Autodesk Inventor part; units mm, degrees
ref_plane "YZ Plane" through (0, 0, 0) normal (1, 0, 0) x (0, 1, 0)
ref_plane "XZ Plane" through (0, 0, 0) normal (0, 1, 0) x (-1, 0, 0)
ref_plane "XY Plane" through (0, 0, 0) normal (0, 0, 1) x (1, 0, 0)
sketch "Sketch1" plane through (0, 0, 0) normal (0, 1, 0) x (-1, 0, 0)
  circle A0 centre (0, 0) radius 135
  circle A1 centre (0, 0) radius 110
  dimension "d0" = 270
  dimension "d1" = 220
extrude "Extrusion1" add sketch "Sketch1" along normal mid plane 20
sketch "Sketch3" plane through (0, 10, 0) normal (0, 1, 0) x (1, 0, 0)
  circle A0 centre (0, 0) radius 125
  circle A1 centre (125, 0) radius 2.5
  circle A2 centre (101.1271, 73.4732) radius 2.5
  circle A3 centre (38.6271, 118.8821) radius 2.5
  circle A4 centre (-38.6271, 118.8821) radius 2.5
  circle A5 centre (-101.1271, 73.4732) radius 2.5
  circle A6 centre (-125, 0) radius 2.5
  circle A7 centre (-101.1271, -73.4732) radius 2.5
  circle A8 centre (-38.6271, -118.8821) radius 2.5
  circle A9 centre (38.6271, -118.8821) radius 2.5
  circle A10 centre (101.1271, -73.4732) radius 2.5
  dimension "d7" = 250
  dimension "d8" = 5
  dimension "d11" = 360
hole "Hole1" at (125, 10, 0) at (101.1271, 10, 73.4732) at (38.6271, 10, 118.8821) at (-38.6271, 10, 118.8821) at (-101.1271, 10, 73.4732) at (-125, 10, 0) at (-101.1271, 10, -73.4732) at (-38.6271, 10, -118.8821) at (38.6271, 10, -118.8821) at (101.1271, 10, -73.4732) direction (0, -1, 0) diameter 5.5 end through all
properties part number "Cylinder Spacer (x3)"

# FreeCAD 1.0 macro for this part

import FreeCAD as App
import Part
import Sketcher
from FreeCAD import Vector

doc = App.newDocument("Part")
params = doc.addObject("Spreadsheet::Sheet", "Params")
for row, (alias, value) in enumerate([
    ("sketch1_diameter", "270 mm"),
    ("sketch1_diameter2", "220 mm"),
    ("pad1_length", "20 mm"),
    ("sketch2_diameter", "5.5 mm"),
    ("hole_diameter", "5.5 mm"),
], start=1):
    params.set(f"A{row}", alias)
    params.set(f"B{row}", "=" + value)
    params.setAlias(f"B{row}", alias)

body = doc.addObject("PartDesign::Body", "Body")

# Sketch on XZ plane
sketch1 = body.newObject("Sketcher::SketchObject", "Sketch")
sketch1.AttachmentSupport = (doc.getObject("XZ_Plane"), [""])
sketch1.MapMode = "FlatFace"
sketch1.addGeometry([
    Part.Circle(Vector(0, 0, 0), Vector(0, 0, 1), 135),
    Part.Circle(Vector(0, 0, 0), Vector(0, 0, 1), 110),
], False)
sketch1.addConstraint([
    Sketcher.Constraint("Coincident", 0, 3, -1, 1),
    Sketcher.Constraint("Coincident", 1, 3, -1, 1),
    Sketcher.Constraint("Diameter", 0, 270.0),
    Sketcher.Constraint("Diameter", 1, 220.0),
])
sketch1.setExpression("Constraints[2]", "Params.sketch1_diameter")
sketch1.setExpression("Constraints[3]", "Params.sketch1_diameter2")
pad1 = body.newObject("PartDesign::Pad", "Pad")
pad1.Profile = sketch1
pad1.setExpression("Length", "Params.pad1_length")
pad1.Midplane = True

# Sketch on XZ plane
sketch2 = body.newObject("Sketcher::SketchObject", "Sketch001")
sketch2.AttachmentSupport = (doc.getObject("XZ_Plane"), [""])
sketch2.MapMode = "FlatFace"
sketch2.AttachmentOffset = App.Placement(Vector(0, 0, -10), App.Rotation())
sketch2.addGeometry([
    Part.Circle(Vector(125, 0, 0), Vector(0, 0, 1), 2.75),  # 0
    Part.Circle(Vector(101.1271, 73.4732, 0), Vector(0, 0, 1), 2.75),  # 1
    Part.Circle(Vector(38.6271, 118.8821, 0), Vector(0, 0, 1), 2.75),  # 2
    Part.Circle(Vector(-38.6271, 118.8821, 0), Vector(0, 0, 1), 2.75),  # 3
    Part.Circle(Vector(-101.1271, 73.4732, 0), Vector(0, 0, 1), 2.75),  # 4
    Part.Circle(Vector(-125, 0, 0), Vector(0, 0, 1), 2.75),  # 5
    Part.Circle(Vector(-101.1271, -73.4732, 0), Vector(0, 0, 1), 2.75),  # 6
    Part.Circle(Vector(-38.6271, -118.8821, 0), Vector(0, 0, 1), 2.75),  # 7
    Part.Circle(Vector(38.6271, -118.8821, 0), Vector(0, 0, 1), 2.75),  # 8
    Part.Circle(Vector(101.1271, -73.4732, 0), Vector(0, 0, 1), 2.75),  # 9
], False)
sketch2.addConstraint([
    Sketcher.Constraint("Equal", 0, 1),
    Sketcher.Constraint("Equal", 1, 2),
    Sketcher.Constraint("Equal", 2, 3),
    Sketcher.Constraint("Equal", 3, 4),
    Sketcher.Constraint("Equal", 4, 5),
    Sketcher.Constraint("Equal", 5, 6),
    Sketcher.Constraint("Equal", 6, 7),
    Sketcher.Constraint("Equal", 7, 8),
    Sketcher.Constraint("Equal", 8, 9),
    Sketcher.Constraint("Symmetric", 0, 3, 5, 3, -1, 1),
    Sketcher.Constraint("Symmetric", 1, 3, 6, 3, -1, 1),
    Sketcher.Constraint("Symmetric", 2, 3, 7, 3, -1, 1),
    Sketcher.Constraint("Symmetric", 3, 3, 8, 3, -1, 1),
    Sketcher.Constraint("Symmetric", 4, 3, 9, 3, -1, 1),
    Sketcher.Constraint("Symmetric", 2, 3, 3, 3, -2),
    Sketcher.Constraint("Symmetric", 1, 3, 4, 3, -2),
    Sketcher.Constraint("PointOnObject", 0, 3, -1),
    Sketcher.Constraint("Diameter", 0, 5.5),
    Sketcher.Constraint("DistanceX", -1, 1, 0, 3, 125.0),
    Sketcher.Constraint("DistanceX", 2, 3, 1, 3, 62.5),
    Sketcher.Constraint("DistanceX", -1, 1, 1, 3, 101.127),
    Sketcher.Constraint("DistanceY", -1, 1, 2, 3, 118.882),
    Sketcher.Constraint("DistanceY", 1, 3, 2, 3, 45.409),
])
sketch2.setExpression("Constraints[17]", "Params.sketch2_diameter")
doc.recompute()
hole = body.newObject("PartDesign::Hole", "Hole")
hole.Profile = sketch2
hole.ThreadType = "None"
hole.setExpression("Diameter", "Params.hole_diameter")
hole.DepthType = "ThroughAll"
hole.Reversed = True

doc.recompute()
